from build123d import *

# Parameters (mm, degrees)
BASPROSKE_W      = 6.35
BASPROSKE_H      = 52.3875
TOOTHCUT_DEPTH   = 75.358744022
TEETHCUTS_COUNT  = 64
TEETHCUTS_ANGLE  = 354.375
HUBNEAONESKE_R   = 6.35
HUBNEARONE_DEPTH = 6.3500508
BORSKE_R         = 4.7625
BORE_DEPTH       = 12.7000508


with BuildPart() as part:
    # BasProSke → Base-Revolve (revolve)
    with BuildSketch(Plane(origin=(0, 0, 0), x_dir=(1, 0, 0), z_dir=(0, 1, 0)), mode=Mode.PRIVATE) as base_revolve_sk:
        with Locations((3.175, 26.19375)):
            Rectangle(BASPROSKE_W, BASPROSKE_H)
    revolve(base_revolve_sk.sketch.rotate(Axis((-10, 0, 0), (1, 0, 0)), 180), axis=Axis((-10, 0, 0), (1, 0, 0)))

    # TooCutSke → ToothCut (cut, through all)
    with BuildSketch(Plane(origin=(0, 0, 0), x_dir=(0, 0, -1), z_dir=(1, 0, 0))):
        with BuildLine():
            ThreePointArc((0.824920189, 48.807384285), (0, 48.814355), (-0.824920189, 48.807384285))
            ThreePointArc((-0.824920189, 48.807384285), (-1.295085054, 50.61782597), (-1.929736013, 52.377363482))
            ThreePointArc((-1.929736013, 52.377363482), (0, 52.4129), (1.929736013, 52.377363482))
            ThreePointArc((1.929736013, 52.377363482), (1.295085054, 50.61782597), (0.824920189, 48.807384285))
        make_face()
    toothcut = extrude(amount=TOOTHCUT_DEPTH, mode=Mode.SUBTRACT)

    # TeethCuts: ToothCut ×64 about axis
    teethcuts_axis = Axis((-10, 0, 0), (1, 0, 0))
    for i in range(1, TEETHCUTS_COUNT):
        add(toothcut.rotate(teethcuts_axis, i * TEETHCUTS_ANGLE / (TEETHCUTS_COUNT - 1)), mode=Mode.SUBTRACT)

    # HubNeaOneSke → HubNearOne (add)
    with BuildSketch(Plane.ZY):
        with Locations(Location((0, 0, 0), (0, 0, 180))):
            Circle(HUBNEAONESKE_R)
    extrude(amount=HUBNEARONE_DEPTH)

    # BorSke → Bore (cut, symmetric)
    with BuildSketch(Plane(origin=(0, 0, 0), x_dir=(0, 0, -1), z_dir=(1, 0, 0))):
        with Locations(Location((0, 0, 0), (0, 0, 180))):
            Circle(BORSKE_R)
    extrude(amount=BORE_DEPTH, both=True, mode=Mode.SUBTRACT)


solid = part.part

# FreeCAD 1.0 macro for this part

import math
import FreeCAD as App
import Part
import Sketcher
from FreeCAD import Vector
Q = App.Units.Quantity


def add_polygon(sketch, points):
    """Adds a closed chain of lines whose ends are joined by coincident constraints."""
    first, n = sketch.GeometryCount, len(points)
    for a, b in zip(points, points[1:] + points[:1]):
        sketch.addGeometry(Part.LineSegment(App.Vector(*a, 0), App.Vector(*b, 0)), False)
    for i in range(n):
        sketch.addConstraint(Sketcher.Constraint("Coincident", first + i, 2, first + (i + 1) % n, 1))

doc = App.newDocument("Part")
body = doc.addObject("PartDesign::Body", "Body")

sketch1 = body.newObject("Sketcher::SketchObject", "Sketch")
sketch1.AttachmentSupport = (doc.getObject("XZ_Plane"), [""])
sketch1.MapMode = "FlatFace"
add_polygon(sketch1, [(0, -52), (0, 0), (6, 0), (6, -52)])
sketch1.addConstraint([
    Sketcher.Constraint("Vertical", 0),
    Sketcher.Constraint("Horizontal", 1),
    Sketcher.Constraint("Vertical", 2),
    Sketcher.Constraint("Horizontal", 3),
    Sketcher.Constraint("Coincident", 0, 2, -1, 1),
    Sketcher.Constraint("DistanceX", 1, 1, 1, 2, Q("0.25 in")),
    Sketcher.Constraint("DistanceY", 0, 1, 0, 2, Q("2.0625 in")),
])
revolution = body.newObject("PartDesign::Revolution", "Revolution")
revolution.Profile = sketch1
revolution.ReferenceAxis = (sketch1, ["H_Axis"])
revolution.Angle = 360

sketch2 = body.newObject("Sketcher::SketchObject", "Sketch001")
sketch2.AttachmentSupport = (doc.getObject("YZ_Plane"), [""])
sketch2.MapMode = "FlatFace"
sketch2.addGeometry([
    Part.ArcOfCircle(Part.Circle(Vector(0, 0, 0), Vector(0, 0, 1), 48.8), math.radians(-0.97), math.radians(0.97)),
    Part.ArcOfCircle(Part.Circle(Vector(44.6, -20.7, 0), Vector(0, 0, 1), 20.3), math.radians(67.53), math.radians(78.08)),
    Part.ArcOfCircle(Part.Circle(Vector(0, 0, 0), Vector(0, 0, 1), 52.4), math.radians(-2.11), math.radians(2.11)),
    Part.ArcOfCircle(Part.Circle(Vector(44.6, 20.7, 0), Vector(0, 0, 1), 20.3), math.radians(-78.08), math.radians(-67.53)),
], False)
sketch2.addConstraint([
    Sketcher.Constraint("Coincident", 0, 1, 1, 2),
    Sketcher.Constraint("Coincident", 1, 1, 2, 1),
    Sketcher.Constraint("Coincident", 2, 2, 3, 2),
    Sketcher.Constraint("Coincident", 3, 1, 0, 2),
    Sketcher.Constraint("Coincident", 0, 3, -1, 1),
    Sketcher.Constraint("Coincident", 2, 3, -1, 1),
    Sketcher.Constraint("Equal", 1, 3),
    Sketcher.Constraint("Symmetric", 1, 3, 3, 3, -1),
    Sketcher.Constraint("Radius", 1, Q("0.8 in")),
    Sketcher.Constraint("Radius", 2, Q("2.0635 in")),
    Sketcher.Constraint("Radius", 0, Q("48.814355 mm")),
    Sketcher.Constraint("DistanceY", 0, 1, -1, 1, Q("0.82492 mm")),
    Sketcher.Constraint("DistanceX", 1, 3, 0, 1, Q("4.19697 mm")),
])
pocket1 = body.newObject("PartDesign::Pocket", "Pocket")
pocket1.Profile = sketch2
pocket1.Type = "ThroughAll"
pocket1.Reversed = True
doc.recompute()

polarpattern = body.newObject("PartDesign::PolarPattern", "PolarPattern")
polarpattern.Originals = [pocket1]
polarpattern.Axis = (doc.getObject("X_Axis"), [""])
polarpattern.Angle = 360
polarpattern.Occurrences = 64
body.Tip = polarpattern

sketch3 = body.newObject("Sketcher::SketchObject", "Sketch002")
sketch3.AttachmentSupport = (doc.getObject("YZ_Plane"), [""])
sketch3.MapMode = "FlatFace"
sketch3.addGeometry(Part.Circle(Vector(0, 0, 0), Vector(0, 0, 1), 6), False)
sketch3.addConstraint([
    Sketcher.Constraint("Coincident", 0, 3, -1, 1),
    Sketcher.Constraint("Diameter", 0, Q("0.5 in")),
])
pad1 = body.newObject("PartDesign::Pad", "Pad")
pad1.Profile = sketch3
pad1.Length = 6.350051
pad1.Reversed = True

sketch4 = body.newObject("Sketcher::SketchObject", "Sketch003")
sketch4.AttachmentSupport = (doc.getObject("YZ_Plane"), [""])
sketch4.MapMode = "FlatFace"
sketch4.addGeometry(Part.Circle(Vector(0, 0, 0), Vector(0, 0, 1), 4.8), False)
sketch4.addConstraint([
    Sketcher.Constraint("Coincident", 0, 3, -1, 1),
    Sketcher.Constraint("Diameter", 0, Q("0.375 in")),
])
pocket2 = body.newObject("PartDesign::Pocket", "Pocket001")
pocket2.Profile = sketch4
pocket2.Length = 25.400102
pocket2.Midplane = True

doc.recompute()
